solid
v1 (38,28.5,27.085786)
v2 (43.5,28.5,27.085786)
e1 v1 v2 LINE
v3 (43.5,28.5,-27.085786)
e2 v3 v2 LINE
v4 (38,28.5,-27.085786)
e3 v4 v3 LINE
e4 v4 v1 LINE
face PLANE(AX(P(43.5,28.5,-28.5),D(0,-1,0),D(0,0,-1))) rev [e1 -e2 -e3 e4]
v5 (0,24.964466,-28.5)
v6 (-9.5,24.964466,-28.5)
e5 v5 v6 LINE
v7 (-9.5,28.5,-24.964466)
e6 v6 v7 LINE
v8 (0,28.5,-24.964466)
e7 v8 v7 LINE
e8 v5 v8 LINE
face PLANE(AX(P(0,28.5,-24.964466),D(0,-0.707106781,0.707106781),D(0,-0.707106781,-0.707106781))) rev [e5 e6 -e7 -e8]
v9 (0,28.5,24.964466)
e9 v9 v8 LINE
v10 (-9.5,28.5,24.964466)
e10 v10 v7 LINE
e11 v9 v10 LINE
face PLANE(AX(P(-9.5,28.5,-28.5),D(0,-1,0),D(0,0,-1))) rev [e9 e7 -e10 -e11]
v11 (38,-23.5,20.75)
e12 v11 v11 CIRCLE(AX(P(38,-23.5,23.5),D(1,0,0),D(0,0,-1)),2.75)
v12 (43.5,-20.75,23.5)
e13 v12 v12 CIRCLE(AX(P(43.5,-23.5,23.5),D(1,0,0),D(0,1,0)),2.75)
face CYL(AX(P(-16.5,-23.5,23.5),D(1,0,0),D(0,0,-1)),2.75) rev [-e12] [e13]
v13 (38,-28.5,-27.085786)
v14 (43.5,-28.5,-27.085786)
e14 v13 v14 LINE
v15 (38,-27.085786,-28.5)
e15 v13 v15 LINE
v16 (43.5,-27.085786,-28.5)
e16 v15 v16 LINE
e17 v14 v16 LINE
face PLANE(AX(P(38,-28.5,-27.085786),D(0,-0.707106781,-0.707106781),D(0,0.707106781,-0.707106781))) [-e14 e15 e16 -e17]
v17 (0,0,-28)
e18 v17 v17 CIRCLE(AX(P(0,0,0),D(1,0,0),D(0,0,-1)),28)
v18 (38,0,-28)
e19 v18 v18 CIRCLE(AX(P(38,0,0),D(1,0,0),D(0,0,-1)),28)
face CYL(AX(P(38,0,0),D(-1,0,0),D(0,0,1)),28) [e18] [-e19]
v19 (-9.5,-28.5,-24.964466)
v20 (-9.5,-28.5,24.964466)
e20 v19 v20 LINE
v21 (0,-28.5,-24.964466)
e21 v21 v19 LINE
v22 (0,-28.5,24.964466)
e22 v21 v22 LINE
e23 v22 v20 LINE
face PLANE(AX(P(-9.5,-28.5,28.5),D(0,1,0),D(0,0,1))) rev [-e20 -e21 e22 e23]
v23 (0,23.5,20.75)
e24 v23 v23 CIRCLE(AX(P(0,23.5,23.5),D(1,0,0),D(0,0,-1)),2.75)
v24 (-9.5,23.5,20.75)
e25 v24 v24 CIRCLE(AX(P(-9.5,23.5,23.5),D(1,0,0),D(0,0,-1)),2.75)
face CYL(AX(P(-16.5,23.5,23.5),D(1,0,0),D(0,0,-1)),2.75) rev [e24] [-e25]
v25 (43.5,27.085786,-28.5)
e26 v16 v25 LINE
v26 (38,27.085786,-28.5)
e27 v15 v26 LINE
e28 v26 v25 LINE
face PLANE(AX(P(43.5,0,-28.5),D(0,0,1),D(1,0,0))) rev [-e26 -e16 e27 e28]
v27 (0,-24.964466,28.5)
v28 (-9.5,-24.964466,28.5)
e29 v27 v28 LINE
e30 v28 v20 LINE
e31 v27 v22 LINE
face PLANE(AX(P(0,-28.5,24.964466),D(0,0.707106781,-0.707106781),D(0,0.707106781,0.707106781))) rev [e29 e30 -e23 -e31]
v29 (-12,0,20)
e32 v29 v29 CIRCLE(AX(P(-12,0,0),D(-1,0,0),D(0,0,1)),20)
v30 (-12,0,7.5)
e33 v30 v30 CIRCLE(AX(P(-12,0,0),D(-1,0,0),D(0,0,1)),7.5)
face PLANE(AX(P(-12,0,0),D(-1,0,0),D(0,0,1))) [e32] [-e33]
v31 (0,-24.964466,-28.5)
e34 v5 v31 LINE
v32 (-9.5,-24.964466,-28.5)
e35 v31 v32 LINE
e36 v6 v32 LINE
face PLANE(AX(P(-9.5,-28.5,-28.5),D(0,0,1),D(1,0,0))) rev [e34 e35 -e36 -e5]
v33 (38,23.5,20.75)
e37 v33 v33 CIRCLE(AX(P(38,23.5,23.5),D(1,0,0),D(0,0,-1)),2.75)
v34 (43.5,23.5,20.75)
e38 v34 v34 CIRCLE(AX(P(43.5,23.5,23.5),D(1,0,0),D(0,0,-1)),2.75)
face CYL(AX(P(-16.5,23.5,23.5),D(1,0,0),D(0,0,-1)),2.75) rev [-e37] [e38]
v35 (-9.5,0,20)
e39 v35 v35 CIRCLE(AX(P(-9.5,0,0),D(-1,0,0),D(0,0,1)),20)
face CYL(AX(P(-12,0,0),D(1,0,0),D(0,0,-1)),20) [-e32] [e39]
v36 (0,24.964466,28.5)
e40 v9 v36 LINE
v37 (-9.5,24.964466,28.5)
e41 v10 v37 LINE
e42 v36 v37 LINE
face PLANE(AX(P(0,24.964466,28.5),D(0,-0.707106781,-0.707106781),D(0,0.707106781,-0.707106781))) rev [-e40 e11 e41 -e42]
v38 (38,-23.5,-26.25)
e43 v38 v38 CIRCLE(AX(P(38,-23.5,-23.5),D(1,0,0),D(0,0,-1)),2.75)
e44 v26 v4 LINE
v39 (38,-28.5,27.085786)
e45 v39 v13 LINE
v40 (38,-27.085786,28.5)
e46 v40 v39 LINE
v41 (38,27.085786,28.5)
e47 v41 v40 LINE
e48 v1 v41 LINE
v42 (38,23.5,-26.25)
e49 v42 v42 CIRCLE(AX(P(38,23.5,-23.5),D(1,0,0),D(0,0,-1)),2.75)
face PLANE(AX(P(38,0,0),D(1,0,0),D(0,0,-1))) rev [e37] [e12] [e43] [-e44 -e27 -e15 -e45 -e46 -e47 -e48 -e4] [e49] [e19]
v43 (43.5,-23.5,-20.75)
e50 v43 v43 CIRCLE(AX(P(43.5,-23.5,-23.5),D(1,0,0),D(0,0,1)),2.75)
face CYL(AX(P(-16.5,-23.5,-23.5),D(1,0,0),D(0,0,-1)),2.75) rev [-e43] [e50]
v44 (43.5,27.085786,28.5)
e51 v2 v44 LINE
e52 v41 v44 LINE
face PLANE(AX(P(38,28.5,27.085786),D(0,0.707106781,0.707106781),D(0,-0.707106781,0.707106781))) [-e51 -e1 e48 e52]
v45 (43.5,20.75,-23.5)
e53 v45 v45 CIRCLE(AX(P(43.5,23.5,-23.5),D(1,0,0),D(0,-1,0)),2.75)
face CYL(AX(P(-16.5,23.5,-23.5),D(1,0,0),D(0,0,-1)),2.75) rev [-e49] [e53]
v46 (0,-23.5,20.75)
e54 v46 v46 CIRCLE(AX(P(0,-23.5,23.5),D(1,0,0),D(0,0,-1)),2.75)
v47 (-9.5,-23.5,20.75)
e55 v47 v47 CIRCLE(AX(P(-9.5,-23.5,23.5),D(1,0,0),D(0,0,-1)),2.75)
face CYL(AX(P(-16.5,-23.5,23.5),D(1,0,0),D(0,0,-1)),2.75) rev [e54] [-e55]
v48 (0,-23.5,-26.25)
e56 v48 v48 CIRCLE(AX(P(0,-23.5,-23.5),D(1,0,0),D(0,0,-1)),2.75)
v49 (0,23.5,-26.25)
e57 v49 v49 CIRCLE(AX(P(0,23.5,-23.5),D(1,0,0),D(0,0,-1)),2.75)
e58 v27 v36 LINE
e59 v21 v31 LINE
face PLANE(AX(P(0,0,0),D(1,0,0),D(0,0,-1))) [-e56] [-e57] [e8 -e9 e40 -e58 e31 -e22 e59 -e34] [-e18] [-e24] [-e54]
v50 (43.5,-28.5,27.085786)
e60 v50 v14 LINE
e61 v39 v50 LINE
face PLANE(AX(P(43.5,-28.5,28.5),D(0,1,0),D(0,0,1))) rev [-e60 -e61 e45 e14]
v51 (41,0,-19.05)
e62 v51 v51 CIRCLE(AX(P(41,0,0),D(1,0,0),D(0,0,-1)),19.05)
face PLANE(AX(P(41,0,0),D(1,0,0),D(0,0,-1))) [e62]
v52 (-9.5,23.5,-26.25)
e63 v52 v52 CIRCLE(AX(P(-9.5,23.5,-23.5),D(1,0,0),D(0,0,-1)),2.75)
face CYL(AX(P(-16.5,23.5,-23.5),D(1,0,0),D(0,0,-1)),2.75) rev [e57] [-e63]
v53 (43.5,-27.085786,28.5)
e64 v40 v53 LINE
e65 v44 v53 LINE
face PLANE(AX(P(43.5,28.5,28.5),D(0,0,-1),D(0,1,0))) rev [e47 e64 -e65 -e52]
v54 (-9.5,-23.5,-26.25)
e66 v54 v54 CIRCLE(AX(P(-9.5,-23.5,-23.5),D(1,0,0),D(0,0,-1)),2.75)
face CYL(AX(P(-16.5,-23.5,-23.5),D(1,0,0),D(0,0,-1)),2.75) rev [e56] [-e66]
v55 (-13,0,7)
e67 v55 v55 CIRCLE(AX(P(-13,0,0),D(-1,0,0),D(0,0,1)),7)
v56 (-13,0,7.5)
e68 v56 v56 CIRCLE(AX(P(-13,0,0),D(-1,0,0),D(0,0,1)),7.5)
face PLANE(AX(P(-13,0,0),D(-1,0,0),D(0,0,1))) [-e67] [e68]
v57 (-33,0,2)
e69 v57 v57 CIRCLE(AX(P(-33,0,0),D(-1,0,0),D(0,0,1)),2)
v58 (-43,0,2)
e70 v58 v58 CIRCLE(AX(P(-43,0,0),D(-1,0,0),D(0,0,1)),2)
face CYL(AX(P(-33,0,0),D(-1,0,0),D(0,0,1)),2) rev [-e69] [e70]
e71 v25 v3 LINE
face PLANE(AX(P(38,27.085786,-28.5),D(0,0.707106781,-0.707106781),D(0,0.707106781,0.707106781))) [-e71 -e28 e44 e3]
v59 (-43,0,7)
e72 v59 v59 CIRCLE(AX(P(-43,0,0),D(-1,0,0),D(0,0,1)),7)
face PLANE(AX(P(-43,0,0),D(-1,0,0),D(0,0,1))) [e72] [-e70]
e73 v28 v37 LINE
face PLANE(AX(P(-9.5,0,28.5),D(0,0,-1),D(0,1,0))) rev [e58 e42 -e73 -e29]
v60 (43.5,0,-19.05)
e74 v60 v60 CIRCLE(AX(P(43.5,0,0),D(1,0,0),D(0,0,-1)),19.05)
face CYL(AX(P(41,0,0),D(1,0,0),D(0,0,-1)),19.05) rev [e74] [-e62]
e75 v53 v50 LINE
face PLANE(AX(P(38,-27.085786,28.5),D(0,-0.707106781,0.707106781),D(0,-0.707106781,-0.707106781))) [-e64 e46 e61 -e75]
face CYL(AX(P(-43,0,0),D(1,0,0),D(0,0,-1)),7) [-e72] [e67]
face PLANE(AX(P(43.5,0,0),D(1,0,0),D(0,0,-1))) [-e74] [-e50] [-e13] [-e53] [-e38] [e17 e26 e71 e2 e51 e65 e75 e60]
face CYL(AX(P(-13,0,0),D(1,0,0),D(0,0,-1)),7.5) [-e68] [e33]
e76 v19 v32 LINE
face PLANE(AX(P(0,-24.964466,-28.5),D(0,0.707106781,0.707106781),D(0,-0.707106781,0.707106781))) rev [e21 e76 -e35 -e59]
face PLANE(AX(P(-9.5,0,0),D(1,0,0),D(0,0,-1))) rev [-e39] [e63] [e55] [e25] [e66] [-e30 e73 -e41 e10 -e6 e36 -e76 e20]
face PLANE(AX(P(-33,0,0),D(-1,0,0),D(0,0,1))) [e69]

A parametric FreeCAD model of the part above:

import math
import FreeCAD as App
import Part
import Sketcher


def add_polygon(sketch, points):
    """Adds a closed chain of lines whose ends are joined by coincident constraints."""
    first, n = sketch.GeometryCount, len(points)
    for a, b in zip(points, points[1:] + points[:1]):
        sketch.addGeometry(Part.LineSegment(App.Vector(*a, 0), App.Vector(*b, 0)), False)
    for i in range(n):
        sketch.addConstraint(Sketcher.Constraint("Coincident", first + i, 2, first + (i + 1) % n, 1))

doc = App.newDocument("Part")
body = doc.addObject("PartDesign::Body", "Body")

# Sketch on YZ plane
sketch1 = body.newObject("Sketcher::SketchObject", "Sketch")
sketch1.AttachmentSupport = (doc.getObject("YZ_Plane"), [""])
sketch1.MapMode = "FlatFace"
sketch1.addGeometry(Part.Circle(App.Vector(0, 0, 0), App.Vector(0, 0, 1), 28), False)
sketch1.addConstraint([
    Sketcher.Constraint("Coincident", 0, 3, -1, 1),
    Sketcher.Constraint("Diameter", 0, 56.0),
])
pad1 = body.newObject("PartDesign::Pad", "Pad")
pad1.Profile = sketch1
pad1.Length = 38

# Sketch on YZ plane
sketch2 = body.newObject("Sketcher::SketchObject", "Sketch001")
sketch2.AttachmentSupport = (doc.getObject("YZ_Plane"), [""])
sketch2.MapMode = "FlatFace"
sketch2.AttachmentOffset = App.Placement(App.Vector(0, 0, 38), App.Rotation())
add_polygon(sketch2, [(28, -28), (28, 28), (-28, 28), (-28, -28)])  # lines 0-3
sketch2.addConstraint([
    Sketcher.Constraint("Vertical", 0),
    Sketcher.Constraint("Horizontal", 1),
    Sketcher.Constraint("Vertical", 2),
    Sketcher.Constraint("Horizontal", 3),
    Sketcher.Constraint("Symmetric", 0, 2, 2, 2, -1, 1),
    Sketcher.Constraint("Equal", 3, 0),
    Sketcher.Constraint("DistanceX", 1, 2, 1, 1, 57.0),
])
pad2 = body.newObject("PartDesign::Pad", "Pad001")
pad2.Profile = sketch2
pad2.Length = 5.5

# Sketch on YZ plane
sketch3 = body.newObject("Sketcher::SketchObject", "Sketch002")
sketch3.AttachmentSupport = (doc.getObject("YZ_Plane"), [""])
sketch3.MapMode = "FlatFace"
sketch3.AttachmentOffset = App.Placement(App.Vector(0, 0, 43.5), App.Rotation())
sketch3.addGeometry(Part.Circle(App.Vector(0, 0, 0), App.Vector(0, 0, 1), 19), False)
sketch3.addConstraint([
    Sketcher.Constraint("Coincident", 0, 3, -1, 1),
    Sketcher.Constraint("Diameter", 0, 38.1),
])
pocket1 = body.newObject("PartDesign::Pocket", "Pocket")
pocket1.Profile = sketch3
pocket1.Length = 2.5

# Sketch on YZ plane
sketch4 = body.newObject("Sketcher::SketchObject", "Sketch003")
sketch4.AttachmentSupport = (doc.getObject("YZ_Plane"), [""])
sketch4.MapMode = "FlatFace"
sketch4.AttachmentOffset = App.Placement(App.Vector(0, 0, 43.5), App.Rotation())
add_polygon(sketch4, [(27.1, 28.5), (28.5, 27.1), (28.5, 28.5)])  # lines 0-2
sketch4.addConstraint([
    Sketcher.Constraint("Vertical", 1),
    Sketcher.Constraint("Horizontal", 2),
    Sketcher.Constraint("Equal", 2, 1),
    Sketcher.Constraint("Distance", 0, 2.0),
    Sketcher.Constraint("DistanceX", -1, 1, 0, 2, 28.5),
    Sketcher.Constraint("DistanceY", -1, 1, 1, 2, 28.5),
])
pocket2 = body.newObject("PartDesign::Pocket", "Pocket001")
pocket2.Profile = sketch4
pocket2.Length = 5.5
doc.recompute()

polarpattern = body.newObject("PartDesign::PolarPattern", "PolarPattern")
polarpattern.Originals = [pocket2]
polarpattern.Axis = (doc.getObject("X_Axis"), [""])
polarpattern.Angle = 360
polarpattern.Occurrences = 4
body.Tip = polarpattern

# Sketch on YZ plane
sketch5 = body.newObject("Sketcher::SketchObject", "Sketch004")
sketch5.AttachmentSupport = (doc.getObject("YZ_Plane"), [""])
sketch5.MapMode = "FlatFace"
add_polygon(sketch5, [(-28, 28), (28, 28), (28, -28), (-28, -28)])  # lines 0-3
sketch5.addConstraint([
    Sketcher.Constraint("Horizontal", 0),
    Sketcher.Constraint("Vertical", 1),
    Sketcher.Constraint("Horizontal", 2),
    Sketcher.Constraint("Vertical", 3),
    Sketcher.Constraint("Symmetric", 0, 2, 2, 2, -1, 1),
    Sketcher.Constraint("Equal", 2, 1),
    Sketcher.Constraint("DistanceX", 0, 1, 0, 2, 57.0),
])
pad3 = body.newObject("PartDesign::Pad", "Pad002")
pad3.Profile = sketch5
pad3.Length = 9.5
pad3.Reversed = True

# Sketch on YZ plane
sketch6 = body.newObject("Sketcher::SketchObject", "Sketch005")
sketch6.AttachmentSupport = (doc.getObject("YZ_Plane"), [""])
sketch6.MapMode = "FlatFace"
sketch6.AttachmentOffset = App.Placement(App.Vector(0, 0, -9.5), App.Rotation())
add_polygon(sketch6, [(25, -28.5), (28.5, -25), (28.5, -28.5)])  # lines 0-2
sketch6.addConstraint([
    Sketcher.Constraint("Vertical", 1),
    Sketcher.Constraint("Horizontal", 2),
    Sketcher.Constraint("Equal", 2, 1),
    Sketcher.Constraint("Distance", 0, 5.0),
    Sketcher.Constraint("DistanceX", -1, 1, 0, 2, 28.5),
    Sketcher.Constraint("DistanceY", 1, 2, -1, 1, 28.5),
])
pocket3 = body.newObject("PartDesign::Pocket", "Pocket002")
pocket3.Profile = sketch6
pocket3.Length = 9.5
pocket3.Reversed = True
doc.recompute()

polarpattern2 = body.newObject("PartDesign::PolarPattern", "PolarPattern001")
polarpattern2.Originals = [pocket3]
polarpattern2.Axis = (doc.getObject("X_Axis"), [""])
polarpattern2.Angle = 360
polarpattern2.Occurrences = 4
body.Tip = polarpattern2

# Sketch on YZ plane
sketch7 = body.newObject("Sketcher::SketchObject", "Sketch006")
sketch7.AttachmentSupport = (doc.getObject("YZ_Plane"), [""])
sketch7.MapMode = "FlatFace"
sketch7.AttachmentOffset = App.Placement(App.Vector(0, 0, -9.5), App.Rotation())
sketch7.addGeometry(Part.Circle(App.Vector(0, 0, 0), App.Vector(0, 0, 1), 20), False)
sketch7.addConstraint([
    Sketcher.Constraint("Coincident", 0, 3, -1, 1),
    Sketcher.Constraint("Diameter", 0, 40.0),
])
pad4 = body.newObject("PartDesign::Pad", "Pad003")
pad4.Profile = sketch7
pad4.Length = 2.5
pad4.Reversed = True

# Sketch on YZ plane
sketch8 = body.newObject("Sketcher::SketchObject", "Sketch007")
sketch8.AttachmentSupport = (doc.getObject("YZ_Plane"), [""])
sketch8.MapMode = "FlatFace"
sketch8.AttachmentOffset = App.Placement(App.Vector(0, 0, -12), App.Rotation())
sketch8.addGeometry(Part.Circle(App.Vector(0, 0, 0), App.Vector(0, 0, 1), 8), False)
sketch8.addConstraint([
    Sketcher.Constraint("Coincident", 0, 3, -1, 1),
    Sketcher.Constraint("Diameter", 0, 15.0),
])
pad5 = body.newObject("PartDesign::Pad", "Pad004")
pad5.Profile = sketch8
pad5.Length = 1
pad5.Reversed = True

# Sketch on YZ plane
sketch9 = body.newObject("Sketcher::SketchObject", "Sketch008")
sketch9.AttachmentSupport = (doc.getObject("YZ_Plane"), [""])
sketch9.MapMode = "FlatFace"
sketch9.AttachmentOffset = App.Placement(App.Vector(0, 0, -13), App.Rotation())
sketch9.addGeometry(Part.Circle(App.Vector(0, 0, 0), App.Vector(0, 0, 1), 7), False)
sketch9.addConstraint([
    Sketcher.Constraint("Coincident", 0, 3, -1, 1),
    Sketcher.Constraint("Diameter", 0, 14.0),
])
pad6 = body.newObject("PartDesign::Pad", "Pad005")
pad6.Profile = sketch9
pad6.Length = 30
pad6.Reversed = True

# Sketch on YZ plane
sketch10 = body.newObject("Sketcher::SketchObject", "Sketch009")
sketch10.AttachmentSupport = (doc.getObject("YZ_Plane"), [""])
sketch10.MapMode = "FlatFace"
sketch10.AttachmentOffset = App.Placement(App.Vector(0, 0, -43), App.Rotation())
sketch10.addGeometry(Part.Circle(App.Vector(0, 0, 0), App.Vector(0, 0, 1), 2), False)
sketch10.addConstraint([
    Sketcher.Constraint("Coincident", 0, 3, -1, 1),
    Sketcher.Constraint("Diameter", 0, 4.0),
])
pocket4 = body.newObject("PartDesign::Pocket", "Pocket003")
pocket4.Profile = sketch10
pocket4.Length = 10
pocket4.Reversed = True

# Sketch on YZ plane
sketch11 = body.newObject("Sketcher::SketchObject", "Sketch010")
sketch11.AttachmentSupport = (doc.getObject("YZ_Plane"), [""])
sketch11.MapMode = "FlatFace"
sketch11.AttachmentOffset = App.Placement(App.Vector(0, 0, 43.5), App.Rotation())
sketch11.addGeometry([
    Part.ArcOfCircle(Part.Circle(App.Vector(23.5, 23.5, 0), App.Vector(0, 0, 1), 2.8), math.radians(-180), math.radians(-90)),
    Part.ArcOfCircle(Part.Circle(App.Vector(23.5, 23.5, 0), App.Vector(0, 0, 1), 2.8), math.radians(-90), math.radians(180)),
], False)
sketch11.addConstraint([
    Sketcher.Constraint("Tangent", 0, 1, 1, 2),
    Sketcher.Constraint("Coincident", 1, 1, 0, 2),
    Sketcher.Constraint("Horizontal", 1, 3, 0, 1),
    Sketcher.Constraint("Vertical", 0, 3, 1, 1),
    Sketcher.Constraint("Radius", 0, 2.75),
    Sketcher.Constraint("DistanceX", -1, 1, 0, 3, 23.5),
    Sketcher.Constraint("DistanceY", -1, 1, 0, 3, 23.5),
])
pocket5 = body.newObject("PartDesign::Pocket", "Pocket004")
pocket5.Profile = sketch11
pocket5.Length = 60
doc.recompute()

polarpattern3 = body.newObject("PartDesign::PolarPattern", "PolarPattern002")
polarpattern3.Originals = [pocket5]
polarpattern3.Axis = (doc.getObject("X_Axis"), [""])
polarpattern3.Angle = 360
polarpattern3.Occurrences = 4
body.Tip = polarpattern3

doc.recompute()
